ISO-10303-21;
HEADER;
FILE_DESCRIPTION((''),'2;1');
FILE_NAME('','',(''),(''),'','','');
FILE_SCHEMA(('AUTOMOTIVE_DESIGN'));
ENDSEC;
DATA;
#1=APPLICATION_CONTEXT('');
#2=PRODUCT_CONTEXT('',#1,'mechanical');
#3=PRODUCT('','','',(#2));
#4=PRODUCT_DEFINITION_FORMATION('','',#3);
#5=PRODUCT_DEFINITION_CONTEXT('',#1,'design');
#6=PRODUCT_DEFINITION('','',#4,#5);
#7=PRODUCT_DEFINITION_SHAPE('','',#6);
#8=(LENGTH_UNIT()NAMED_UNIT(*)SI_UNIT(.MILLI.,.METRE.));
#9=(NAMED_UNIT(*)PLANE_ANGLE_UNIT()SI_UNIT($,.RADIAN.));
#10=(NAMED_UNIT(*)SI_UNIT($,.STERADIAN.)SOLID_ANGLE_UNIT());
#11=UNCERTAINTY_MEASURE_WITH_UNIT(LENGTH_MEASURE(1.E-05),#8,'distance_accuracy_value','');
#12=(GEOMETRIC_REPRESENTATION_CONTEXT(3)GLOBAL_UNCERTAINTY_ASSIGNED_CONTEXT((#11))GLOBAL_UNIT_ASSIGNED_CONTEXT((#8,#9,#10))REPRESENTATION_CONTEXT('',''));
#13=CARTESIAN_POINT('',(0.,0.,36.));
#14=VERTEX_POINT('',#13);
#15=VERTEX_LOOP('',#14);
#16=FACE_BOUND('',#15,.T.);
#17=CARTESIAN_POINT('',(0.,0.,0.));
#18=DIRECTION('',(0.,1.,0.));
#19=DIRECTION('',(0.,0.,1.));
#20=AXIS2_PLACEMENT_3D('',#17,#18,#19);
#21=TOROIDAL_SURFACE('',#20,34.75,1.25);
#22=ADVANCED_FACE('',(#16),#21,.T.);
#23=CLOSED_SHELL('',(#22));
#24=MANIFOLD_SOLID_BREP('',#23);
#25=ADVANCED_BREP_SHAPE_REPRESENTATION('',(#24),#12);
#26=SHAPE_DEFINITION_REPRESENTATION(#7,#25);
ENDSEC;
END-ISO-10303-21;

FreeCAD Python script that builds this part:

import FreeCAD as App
import Part
import Sketcher
from FreeCAD import Vector
Q = App.Units.Quantity

doc = App.newDocument("Part")
body = doc.addObject("PartDesign::Body", "Body")

sketch1 = body.newObject("Sketcher::SketchObject", "Sketch")
sketch1.AttachmentSupport = (doc.getObject("XY_Plane"), [""])
sketch1.MapMode = "FlatFace"
sketch1.addGeometry(Part.Circle(Vector(-34.8, 0, 0), Vector(0, 0, 1), 1.2), False)
sketch1.addConstraint([
    Sketcher.Constraint("PointOnObject", 0, 3, -1),
    Sketcher.Constraint("Diameter", 0, Q("2.5 mm")),
    Sketcher.Constraint("DistanceX", 0, 3, -1, 1, Q("34.75 mm")),
])
revolution = body.newObject("PartDesign::Revolution", "Revolution")
revolution.Profile = sketch1
revolution.ReferenceAxis = (sketch1, ["V_Axis"])
revolution.Angle = 360

doc.recompute()
